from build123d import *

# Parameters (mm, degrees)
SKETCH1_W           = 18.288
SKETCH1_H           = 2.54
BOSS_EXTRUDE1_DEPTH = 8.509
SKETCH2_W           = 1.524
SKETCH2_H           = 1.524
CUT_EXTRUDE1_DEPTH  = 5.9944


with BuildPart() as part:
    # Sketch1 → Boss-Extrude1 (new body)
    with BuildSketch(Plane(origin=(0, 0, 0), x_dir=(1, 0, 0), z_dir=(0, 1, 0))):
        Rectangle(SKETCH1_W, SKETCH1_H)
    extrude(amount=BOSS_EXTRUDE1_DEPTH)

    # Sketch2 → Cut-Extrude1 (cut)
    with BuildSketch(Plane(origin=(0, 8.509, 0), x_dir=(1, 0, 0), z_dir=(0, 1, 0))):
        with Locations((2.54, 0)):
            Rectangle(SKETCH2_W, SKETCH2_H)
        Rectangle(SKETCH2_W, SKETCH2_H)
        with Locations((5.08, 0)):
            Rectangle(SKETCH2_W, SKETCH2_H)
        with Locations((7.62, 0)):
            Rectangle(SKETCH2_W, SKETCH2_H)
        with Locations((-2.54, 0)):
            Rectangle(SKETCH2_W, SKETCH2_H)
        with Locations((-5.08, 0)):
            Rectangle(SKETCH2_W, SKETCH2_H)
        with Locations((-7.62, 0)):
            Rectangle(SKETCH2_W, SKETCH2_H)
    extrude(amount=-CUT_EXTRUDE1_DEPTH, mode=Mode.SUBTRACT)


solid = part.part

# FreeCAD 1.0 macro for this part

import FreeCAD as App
import Part
import Sketcher
from FreeCAD import Vector
Q = App.Units.Quantity

doc = App.newDocument("Part")
body = doc.addObject("PartDesign::Body", "Body")

# Sketch on XZ plane
sketch1 = body.newObject("Sketcher::SketchObject", "Sketch")
sketch1.AttachmentSupport = (doc.getObject("XZ_Plane"), [""])
sketch1.MapMode = "FlatFace"
sketch1.addGeometry([
    Part.LineSegment(Vector(-9.1, -1.3, 0), Vector(-9.1, 1.3, 0)),
    Part.LineSegment(Vector(-9.1, 1.3, 0), Vector(9.1, 1.3, 0)),
    Part.LineSegment(Vector(9.1, 1.3, 0), Vector(9.1, -1.3, 0)),
    Part.LineSegment(Vector(9.1, -1.3, 0), Vector(-9.1, -1.3, 0)),
], False)
sketch1.addConstraint([
    Sketcher.Constraint("Coincident", 0, 2, 1, 1),
    Sketcher.Constraint("Coincident", 1, 2, 2, 1),
    Sketcher.Constraint("Coincident", 2, 2, 3, 1),
    Sketcher.Constraint("Coincident", 3, 2, 0, 1),
    Sketcher.Constraint("Vertical", 0),
    Sketcher.Constraint("Horizontal", 1),
    Sketcher.Constraint("Vertical", 2),
    Sketcher.Constraint("Horizontal", 3),
    Sketcher.Constraint("Symmetric", 0, 2, 2, 2, -1, 1),
    Sketcher.Constraint("DistanceY", 0, 1, 0, 2, Q("0.1 in")),
    Sketcher.Constraint("DistanceX", 1, 1, 1, 2, Q("0.72 in")),
])
pad1 = body.newObject("PartDesign::Pad", "Pad")
pad1.Profile = sketch1
pad1.Length = Q("0.335 in")
pad1.Reversed = True

# Sketch on XZ plane
sketch2 = body.newObject("Sketcher::SketchObject", "Sketch001")
sketch2.AttachmentSupport = (doc.getObject("XZ_Plane"), [""])
sketch2.MapMode = "FlatFace"
sketch2.AttachmentOffset = App.Placement(Vector(0, 0, -0.335 * 25.4), App.Rotation())
sketch2.addGeometry([
    Part.LineSegment(Vector(1.8, -0.8, 0), Vector(1.8, 0.8, 0)),  # 0
    Part.LineSegment(Vector(1.8, 0.8, 0), Vector(3.3, 0.8, 0)),  # 1
    Part.LineSegment(Vector(3.3, 0.8, 0), Vector(3.3, -0.8, 0)),  # 2
    Part.LineSegment(Vector(3.3, -0.8, 0), Vector(1.8, -0.8, 0)),  # 3
    Part.LineSegment(Vector(-0.8, -0.8, 0), Vector(-0.8, 0.8, 0)),  # 4
    Part.LineSegment(Vector(-0.8, 0.8, 0), Vector(0.8, 0.8, 0)),  # 5
    Part.LineSegment(Vector(0.8, 0.8, 0), Vector(0.8, -0.8, 0)),  # 6
    Part.LineSegment(Vector(0.8, -0.8, 0), Vector(-0.8, -0.8, 0)),  # 7
    Part.LineSegment(Vector(4.3, -0.8, 0), Vector(4.3, 0.8, 0)),  # 8
    Part.LineSegment(Vector(4.3, 0.8, 0), Vector(5.8, 0.8, 0)),  # 9
    Part.LineSegment(Vector(5.8, 0.8, 0), Vector(5.8, -0.8, 0)),  # 10
    Part.LineSegment(Vector(5.8, -0.8, 0), Vector(4.3, -0.8, 0)),  # 11
    Part.LineSegment(Vector(6.9, -0.8, 0), Vector(6.9, 0.8, 0)),  # 12
    Part.LineSegment(Vector(6.9, 0.8, 0), Vector(8.4, 0.8, 0)),  # 13
    Part.LineSegment(Vector(8.4, 0.8, 0), Vector(8.4, -0.8, 0)),  # 14
    Part.LineSegment(Vector(8.4, -0.8, 0), Vector(6.9, -0.8, 0)),  # 15
    Part.LineSegment(Vector(-3.3, -0.8, 0), Vector(-3.3, 0.8, 0)),  # 16
    Part.LineSegment(Vector(-3.3, 0.8, 0), Vector(-1.8, 0.8, 0)),  # 17
    Part.LineSegment(Vector(-1.8, 0.8, 0), Vector(-1.8, -0.8, 0)),  # 18
    Part.LineSegment(Vector(-1.8, -0.8, 0), Vector(-3.3, -0.8, 0)),  # 19
    Part.LineSegment(Vector(-5.8, -0.8, 0), Vector(-5.8, 0.8, 0)),  # 20
    Part.LineSegment(Vector(-5.8, 0.8, 0), Vector(-4.3, 0.8, 0)),  # 21
    Part.LineSegment(Vector(-4.3, 0.8, 0), Vector(-4.3, -0.8, 0)),  # 22
    Part.LineSegment(Vector(-4.3, -0.8, 0), Vector(-5.8, -0.8, 0)),  # 23
    Part.LineSegment(Vector(-8.4, -0.8, 0), Vector(-8.4, 0.8, 0)),  # 24
    Part.LineSegment(Vector(-8.4, 0.8, 0), Vector(-6.9, 0.8, 0)),  # 25
    Part.LineSegment(Vector(-6.9, 0.8, 0), Vector(-6.9, -0.8, 0)),  # 26
    Part.LineSegment(Vector(-6.9, -0.8, 0), Vector(-8.4, -0.8, 0)),  # 27
], False)
sketch2.addConstraint([
    Sketcher.Constraint("Coincident", 0, 2, 1, 1),
    Sketcher.Constraint("Coincident", 1, 2, 2, 1),
    Sketcher.Constraint("Coincident", 2, 2, 3, 1),
    Sketcher.Constraint("Coincident", 3, 2, 0, 1),
    Sketcher.Constraint("Coincident", 4, 2, 5, 1),
    Sketcher.Constraint("Coincident", 5, 2, 6, 1),
    Sketcher.Constraint("Coincident", 6, 2, 7, 1),
    Sketcher.Constraint("Coincident", 7, 2, 4, 1),
    Sketcher.Constraint("Coincident", 8, 2, 9, 1),
    Sketcher.Constraint("Coincident", 9, 2, 10, 1),
    Sketcher.Constraint("Coincident", 10, 2, 11, 1),
    Sketcher.Constraint("Coincident", 11, 2, 8, 1),
    Sketcher.Constraint("Coincident", 12, 2, 13, 1),
    Sketcher.Constraint("Coincident", 13, 2, 14, 1),
    Sketcher.Constraint("Coincident", 14, 2, 15, 1),
    Sketcher.Constraint("Coincident", 15, 2, 12, 1),
    Sketcher.Constraint("Coincident", 16, 2, 17, 1),
    Sketcher.Constraint("Coincident", 17, 2, 18, 1),
    Sketcher.Constraint("Coincident", 18, 2, 19, 1),
    Sketcher.Constraint("Coincident", 19, 2, 16, 1),
    Sketcher.Constraint("Coincident", 20, 2, 21, 1),
    Sketcher.Constraint("Coincident", 21, 2, 22, 1),
    Sketcher.Constraint("Coincident", 22, 2, 23, 1),
    Sketcher.Constraint("Coincident", 23, 2, 20, 1),
    Sketcher.Constraint("Coincident", 24, 2, 25, 1),
    Sketcher.Constraint("Coincident", 25, 2, 26, 1),
    Sketcher.Constraint("Coincident", 26, 2, 27, 1),
    Sketcher.Constraint("Coincident", 27, 2, 24, 1),
    Sketcher.Constraint("Vertical", 0),
    Sketcher.Constraint("Horizontal", 1),
    Sketcher.Constraint("Vertical", 2),
    Sketcher.Constraint("Horizontal", 3),
    Sketcher.Constraint("Vertical", 4),
    Sketcher.Constraint("Horizontal", 5),
    Sketcher.Constraint("Vertical", 6),
    Sketcher.Constraint("Horizontal", 7),
    Sketcher.Constraint("Vertical", 8),
    Sketcher.Constraint("Horizontal", 9),
    Sketcher.Constraint("Vertical", 10),
    Sketcher.Constraint("Horizontal", 11),
    Sketcher.Constraint("Vertical", 12),
    Sketcher.Constraint("Horizontal", 13),
    Sketcher.Constraint("Vertical", 14),
    Sketcher.Constraint("Horizontal", 15),
    Sketcher.Constraint("Vertical", 16),
    Sketcher.Constraint("Horizontal", 17),
    Sketcher.Constraint("Vertical", 18),
    Sketcher.Constraint("Horizontal", 19),
    Sketcher.Constraint("Vertical", 20),
    Sketcher.Constraint("Horizontal", 21),
    Sketcher.Constraint("Vertical", 22),
    Sketcher.Constraint("Horizontal", 23),
    Sketcher.Constraint("Vertical", 24),
    Sketcher.Constraint("Horizontal", 25),
    Sketcher.Constraint("Vertical", 26),
    Sketcher.Constraint("Horizontal", 27),
    Sketcher.Constraint("Symmetric", 4, 2, 6, 2, -1, 1),
    Sketcher.Constraint("Symmetric", 2, 2, 16, 2, -1, 1),
    Sketcher.Constraint("Symmetric", 0, 2, 18, 2, -1, 1),
    Sketcher.Constraint("Symmetric", 10, 2, 20, 2, -1, 1),
    Sketcher.Constraint("Symmetric", 8, 2, 22, 2, -1, 1),
    Sketcher.Constraint("Symmetric", 14, 2, 24, 2, -1, 1),
    Sketcher.Constraint("Symmetric", 12, 2, 26, 2, -1, 1),
    Sketcher.Constraint("Horizontal", 1, 2, 4, 2),
    Sketcher.Constraint("Horizontal", 3, 2, 6, 2),
    Sketcher.Constraint("Horizontal", 5, 2, 8, 2),
    Sketcher.Constraint("Horizontal", 7, 2, 10, 2),
    Sketcher.Constraint("Horizontal", 9, 2, 12, 2),
    Sketcher.Constraint("Horizontal", 11, 2, 14, 2),
    Sketcher.Constraint("Equal", 3, 5),
    Sketcher.Constraint("Equal", 7, 9),
    Sketcher.Constraint("Equal", 11, 13),
    Sketcher.Constraint("Equal", 27, 0),
    Sketcher.Constraint("DistanceX", 1, 1, 1, 2, Q("0.06 in")),
    Sketcher.Constraint("DistanceX", 4, 2, 0, 2, Q("0.1 in")),
    Sketcher.Constraint("DistanceX", 0, 2, 8, 2, Q("0.1 in")),
    Sketcher.Constraint("DistanceX", 8, 2, 12, 2, Q("0.1 in")),
])
pocket1 = body.newObject("PartDesign::Pocket", "Pocket")
pocket1.Profile = sketch2
pocket1.Length = Q("0.236 in")
pocket1.Reversed = True

doc.recompute()
